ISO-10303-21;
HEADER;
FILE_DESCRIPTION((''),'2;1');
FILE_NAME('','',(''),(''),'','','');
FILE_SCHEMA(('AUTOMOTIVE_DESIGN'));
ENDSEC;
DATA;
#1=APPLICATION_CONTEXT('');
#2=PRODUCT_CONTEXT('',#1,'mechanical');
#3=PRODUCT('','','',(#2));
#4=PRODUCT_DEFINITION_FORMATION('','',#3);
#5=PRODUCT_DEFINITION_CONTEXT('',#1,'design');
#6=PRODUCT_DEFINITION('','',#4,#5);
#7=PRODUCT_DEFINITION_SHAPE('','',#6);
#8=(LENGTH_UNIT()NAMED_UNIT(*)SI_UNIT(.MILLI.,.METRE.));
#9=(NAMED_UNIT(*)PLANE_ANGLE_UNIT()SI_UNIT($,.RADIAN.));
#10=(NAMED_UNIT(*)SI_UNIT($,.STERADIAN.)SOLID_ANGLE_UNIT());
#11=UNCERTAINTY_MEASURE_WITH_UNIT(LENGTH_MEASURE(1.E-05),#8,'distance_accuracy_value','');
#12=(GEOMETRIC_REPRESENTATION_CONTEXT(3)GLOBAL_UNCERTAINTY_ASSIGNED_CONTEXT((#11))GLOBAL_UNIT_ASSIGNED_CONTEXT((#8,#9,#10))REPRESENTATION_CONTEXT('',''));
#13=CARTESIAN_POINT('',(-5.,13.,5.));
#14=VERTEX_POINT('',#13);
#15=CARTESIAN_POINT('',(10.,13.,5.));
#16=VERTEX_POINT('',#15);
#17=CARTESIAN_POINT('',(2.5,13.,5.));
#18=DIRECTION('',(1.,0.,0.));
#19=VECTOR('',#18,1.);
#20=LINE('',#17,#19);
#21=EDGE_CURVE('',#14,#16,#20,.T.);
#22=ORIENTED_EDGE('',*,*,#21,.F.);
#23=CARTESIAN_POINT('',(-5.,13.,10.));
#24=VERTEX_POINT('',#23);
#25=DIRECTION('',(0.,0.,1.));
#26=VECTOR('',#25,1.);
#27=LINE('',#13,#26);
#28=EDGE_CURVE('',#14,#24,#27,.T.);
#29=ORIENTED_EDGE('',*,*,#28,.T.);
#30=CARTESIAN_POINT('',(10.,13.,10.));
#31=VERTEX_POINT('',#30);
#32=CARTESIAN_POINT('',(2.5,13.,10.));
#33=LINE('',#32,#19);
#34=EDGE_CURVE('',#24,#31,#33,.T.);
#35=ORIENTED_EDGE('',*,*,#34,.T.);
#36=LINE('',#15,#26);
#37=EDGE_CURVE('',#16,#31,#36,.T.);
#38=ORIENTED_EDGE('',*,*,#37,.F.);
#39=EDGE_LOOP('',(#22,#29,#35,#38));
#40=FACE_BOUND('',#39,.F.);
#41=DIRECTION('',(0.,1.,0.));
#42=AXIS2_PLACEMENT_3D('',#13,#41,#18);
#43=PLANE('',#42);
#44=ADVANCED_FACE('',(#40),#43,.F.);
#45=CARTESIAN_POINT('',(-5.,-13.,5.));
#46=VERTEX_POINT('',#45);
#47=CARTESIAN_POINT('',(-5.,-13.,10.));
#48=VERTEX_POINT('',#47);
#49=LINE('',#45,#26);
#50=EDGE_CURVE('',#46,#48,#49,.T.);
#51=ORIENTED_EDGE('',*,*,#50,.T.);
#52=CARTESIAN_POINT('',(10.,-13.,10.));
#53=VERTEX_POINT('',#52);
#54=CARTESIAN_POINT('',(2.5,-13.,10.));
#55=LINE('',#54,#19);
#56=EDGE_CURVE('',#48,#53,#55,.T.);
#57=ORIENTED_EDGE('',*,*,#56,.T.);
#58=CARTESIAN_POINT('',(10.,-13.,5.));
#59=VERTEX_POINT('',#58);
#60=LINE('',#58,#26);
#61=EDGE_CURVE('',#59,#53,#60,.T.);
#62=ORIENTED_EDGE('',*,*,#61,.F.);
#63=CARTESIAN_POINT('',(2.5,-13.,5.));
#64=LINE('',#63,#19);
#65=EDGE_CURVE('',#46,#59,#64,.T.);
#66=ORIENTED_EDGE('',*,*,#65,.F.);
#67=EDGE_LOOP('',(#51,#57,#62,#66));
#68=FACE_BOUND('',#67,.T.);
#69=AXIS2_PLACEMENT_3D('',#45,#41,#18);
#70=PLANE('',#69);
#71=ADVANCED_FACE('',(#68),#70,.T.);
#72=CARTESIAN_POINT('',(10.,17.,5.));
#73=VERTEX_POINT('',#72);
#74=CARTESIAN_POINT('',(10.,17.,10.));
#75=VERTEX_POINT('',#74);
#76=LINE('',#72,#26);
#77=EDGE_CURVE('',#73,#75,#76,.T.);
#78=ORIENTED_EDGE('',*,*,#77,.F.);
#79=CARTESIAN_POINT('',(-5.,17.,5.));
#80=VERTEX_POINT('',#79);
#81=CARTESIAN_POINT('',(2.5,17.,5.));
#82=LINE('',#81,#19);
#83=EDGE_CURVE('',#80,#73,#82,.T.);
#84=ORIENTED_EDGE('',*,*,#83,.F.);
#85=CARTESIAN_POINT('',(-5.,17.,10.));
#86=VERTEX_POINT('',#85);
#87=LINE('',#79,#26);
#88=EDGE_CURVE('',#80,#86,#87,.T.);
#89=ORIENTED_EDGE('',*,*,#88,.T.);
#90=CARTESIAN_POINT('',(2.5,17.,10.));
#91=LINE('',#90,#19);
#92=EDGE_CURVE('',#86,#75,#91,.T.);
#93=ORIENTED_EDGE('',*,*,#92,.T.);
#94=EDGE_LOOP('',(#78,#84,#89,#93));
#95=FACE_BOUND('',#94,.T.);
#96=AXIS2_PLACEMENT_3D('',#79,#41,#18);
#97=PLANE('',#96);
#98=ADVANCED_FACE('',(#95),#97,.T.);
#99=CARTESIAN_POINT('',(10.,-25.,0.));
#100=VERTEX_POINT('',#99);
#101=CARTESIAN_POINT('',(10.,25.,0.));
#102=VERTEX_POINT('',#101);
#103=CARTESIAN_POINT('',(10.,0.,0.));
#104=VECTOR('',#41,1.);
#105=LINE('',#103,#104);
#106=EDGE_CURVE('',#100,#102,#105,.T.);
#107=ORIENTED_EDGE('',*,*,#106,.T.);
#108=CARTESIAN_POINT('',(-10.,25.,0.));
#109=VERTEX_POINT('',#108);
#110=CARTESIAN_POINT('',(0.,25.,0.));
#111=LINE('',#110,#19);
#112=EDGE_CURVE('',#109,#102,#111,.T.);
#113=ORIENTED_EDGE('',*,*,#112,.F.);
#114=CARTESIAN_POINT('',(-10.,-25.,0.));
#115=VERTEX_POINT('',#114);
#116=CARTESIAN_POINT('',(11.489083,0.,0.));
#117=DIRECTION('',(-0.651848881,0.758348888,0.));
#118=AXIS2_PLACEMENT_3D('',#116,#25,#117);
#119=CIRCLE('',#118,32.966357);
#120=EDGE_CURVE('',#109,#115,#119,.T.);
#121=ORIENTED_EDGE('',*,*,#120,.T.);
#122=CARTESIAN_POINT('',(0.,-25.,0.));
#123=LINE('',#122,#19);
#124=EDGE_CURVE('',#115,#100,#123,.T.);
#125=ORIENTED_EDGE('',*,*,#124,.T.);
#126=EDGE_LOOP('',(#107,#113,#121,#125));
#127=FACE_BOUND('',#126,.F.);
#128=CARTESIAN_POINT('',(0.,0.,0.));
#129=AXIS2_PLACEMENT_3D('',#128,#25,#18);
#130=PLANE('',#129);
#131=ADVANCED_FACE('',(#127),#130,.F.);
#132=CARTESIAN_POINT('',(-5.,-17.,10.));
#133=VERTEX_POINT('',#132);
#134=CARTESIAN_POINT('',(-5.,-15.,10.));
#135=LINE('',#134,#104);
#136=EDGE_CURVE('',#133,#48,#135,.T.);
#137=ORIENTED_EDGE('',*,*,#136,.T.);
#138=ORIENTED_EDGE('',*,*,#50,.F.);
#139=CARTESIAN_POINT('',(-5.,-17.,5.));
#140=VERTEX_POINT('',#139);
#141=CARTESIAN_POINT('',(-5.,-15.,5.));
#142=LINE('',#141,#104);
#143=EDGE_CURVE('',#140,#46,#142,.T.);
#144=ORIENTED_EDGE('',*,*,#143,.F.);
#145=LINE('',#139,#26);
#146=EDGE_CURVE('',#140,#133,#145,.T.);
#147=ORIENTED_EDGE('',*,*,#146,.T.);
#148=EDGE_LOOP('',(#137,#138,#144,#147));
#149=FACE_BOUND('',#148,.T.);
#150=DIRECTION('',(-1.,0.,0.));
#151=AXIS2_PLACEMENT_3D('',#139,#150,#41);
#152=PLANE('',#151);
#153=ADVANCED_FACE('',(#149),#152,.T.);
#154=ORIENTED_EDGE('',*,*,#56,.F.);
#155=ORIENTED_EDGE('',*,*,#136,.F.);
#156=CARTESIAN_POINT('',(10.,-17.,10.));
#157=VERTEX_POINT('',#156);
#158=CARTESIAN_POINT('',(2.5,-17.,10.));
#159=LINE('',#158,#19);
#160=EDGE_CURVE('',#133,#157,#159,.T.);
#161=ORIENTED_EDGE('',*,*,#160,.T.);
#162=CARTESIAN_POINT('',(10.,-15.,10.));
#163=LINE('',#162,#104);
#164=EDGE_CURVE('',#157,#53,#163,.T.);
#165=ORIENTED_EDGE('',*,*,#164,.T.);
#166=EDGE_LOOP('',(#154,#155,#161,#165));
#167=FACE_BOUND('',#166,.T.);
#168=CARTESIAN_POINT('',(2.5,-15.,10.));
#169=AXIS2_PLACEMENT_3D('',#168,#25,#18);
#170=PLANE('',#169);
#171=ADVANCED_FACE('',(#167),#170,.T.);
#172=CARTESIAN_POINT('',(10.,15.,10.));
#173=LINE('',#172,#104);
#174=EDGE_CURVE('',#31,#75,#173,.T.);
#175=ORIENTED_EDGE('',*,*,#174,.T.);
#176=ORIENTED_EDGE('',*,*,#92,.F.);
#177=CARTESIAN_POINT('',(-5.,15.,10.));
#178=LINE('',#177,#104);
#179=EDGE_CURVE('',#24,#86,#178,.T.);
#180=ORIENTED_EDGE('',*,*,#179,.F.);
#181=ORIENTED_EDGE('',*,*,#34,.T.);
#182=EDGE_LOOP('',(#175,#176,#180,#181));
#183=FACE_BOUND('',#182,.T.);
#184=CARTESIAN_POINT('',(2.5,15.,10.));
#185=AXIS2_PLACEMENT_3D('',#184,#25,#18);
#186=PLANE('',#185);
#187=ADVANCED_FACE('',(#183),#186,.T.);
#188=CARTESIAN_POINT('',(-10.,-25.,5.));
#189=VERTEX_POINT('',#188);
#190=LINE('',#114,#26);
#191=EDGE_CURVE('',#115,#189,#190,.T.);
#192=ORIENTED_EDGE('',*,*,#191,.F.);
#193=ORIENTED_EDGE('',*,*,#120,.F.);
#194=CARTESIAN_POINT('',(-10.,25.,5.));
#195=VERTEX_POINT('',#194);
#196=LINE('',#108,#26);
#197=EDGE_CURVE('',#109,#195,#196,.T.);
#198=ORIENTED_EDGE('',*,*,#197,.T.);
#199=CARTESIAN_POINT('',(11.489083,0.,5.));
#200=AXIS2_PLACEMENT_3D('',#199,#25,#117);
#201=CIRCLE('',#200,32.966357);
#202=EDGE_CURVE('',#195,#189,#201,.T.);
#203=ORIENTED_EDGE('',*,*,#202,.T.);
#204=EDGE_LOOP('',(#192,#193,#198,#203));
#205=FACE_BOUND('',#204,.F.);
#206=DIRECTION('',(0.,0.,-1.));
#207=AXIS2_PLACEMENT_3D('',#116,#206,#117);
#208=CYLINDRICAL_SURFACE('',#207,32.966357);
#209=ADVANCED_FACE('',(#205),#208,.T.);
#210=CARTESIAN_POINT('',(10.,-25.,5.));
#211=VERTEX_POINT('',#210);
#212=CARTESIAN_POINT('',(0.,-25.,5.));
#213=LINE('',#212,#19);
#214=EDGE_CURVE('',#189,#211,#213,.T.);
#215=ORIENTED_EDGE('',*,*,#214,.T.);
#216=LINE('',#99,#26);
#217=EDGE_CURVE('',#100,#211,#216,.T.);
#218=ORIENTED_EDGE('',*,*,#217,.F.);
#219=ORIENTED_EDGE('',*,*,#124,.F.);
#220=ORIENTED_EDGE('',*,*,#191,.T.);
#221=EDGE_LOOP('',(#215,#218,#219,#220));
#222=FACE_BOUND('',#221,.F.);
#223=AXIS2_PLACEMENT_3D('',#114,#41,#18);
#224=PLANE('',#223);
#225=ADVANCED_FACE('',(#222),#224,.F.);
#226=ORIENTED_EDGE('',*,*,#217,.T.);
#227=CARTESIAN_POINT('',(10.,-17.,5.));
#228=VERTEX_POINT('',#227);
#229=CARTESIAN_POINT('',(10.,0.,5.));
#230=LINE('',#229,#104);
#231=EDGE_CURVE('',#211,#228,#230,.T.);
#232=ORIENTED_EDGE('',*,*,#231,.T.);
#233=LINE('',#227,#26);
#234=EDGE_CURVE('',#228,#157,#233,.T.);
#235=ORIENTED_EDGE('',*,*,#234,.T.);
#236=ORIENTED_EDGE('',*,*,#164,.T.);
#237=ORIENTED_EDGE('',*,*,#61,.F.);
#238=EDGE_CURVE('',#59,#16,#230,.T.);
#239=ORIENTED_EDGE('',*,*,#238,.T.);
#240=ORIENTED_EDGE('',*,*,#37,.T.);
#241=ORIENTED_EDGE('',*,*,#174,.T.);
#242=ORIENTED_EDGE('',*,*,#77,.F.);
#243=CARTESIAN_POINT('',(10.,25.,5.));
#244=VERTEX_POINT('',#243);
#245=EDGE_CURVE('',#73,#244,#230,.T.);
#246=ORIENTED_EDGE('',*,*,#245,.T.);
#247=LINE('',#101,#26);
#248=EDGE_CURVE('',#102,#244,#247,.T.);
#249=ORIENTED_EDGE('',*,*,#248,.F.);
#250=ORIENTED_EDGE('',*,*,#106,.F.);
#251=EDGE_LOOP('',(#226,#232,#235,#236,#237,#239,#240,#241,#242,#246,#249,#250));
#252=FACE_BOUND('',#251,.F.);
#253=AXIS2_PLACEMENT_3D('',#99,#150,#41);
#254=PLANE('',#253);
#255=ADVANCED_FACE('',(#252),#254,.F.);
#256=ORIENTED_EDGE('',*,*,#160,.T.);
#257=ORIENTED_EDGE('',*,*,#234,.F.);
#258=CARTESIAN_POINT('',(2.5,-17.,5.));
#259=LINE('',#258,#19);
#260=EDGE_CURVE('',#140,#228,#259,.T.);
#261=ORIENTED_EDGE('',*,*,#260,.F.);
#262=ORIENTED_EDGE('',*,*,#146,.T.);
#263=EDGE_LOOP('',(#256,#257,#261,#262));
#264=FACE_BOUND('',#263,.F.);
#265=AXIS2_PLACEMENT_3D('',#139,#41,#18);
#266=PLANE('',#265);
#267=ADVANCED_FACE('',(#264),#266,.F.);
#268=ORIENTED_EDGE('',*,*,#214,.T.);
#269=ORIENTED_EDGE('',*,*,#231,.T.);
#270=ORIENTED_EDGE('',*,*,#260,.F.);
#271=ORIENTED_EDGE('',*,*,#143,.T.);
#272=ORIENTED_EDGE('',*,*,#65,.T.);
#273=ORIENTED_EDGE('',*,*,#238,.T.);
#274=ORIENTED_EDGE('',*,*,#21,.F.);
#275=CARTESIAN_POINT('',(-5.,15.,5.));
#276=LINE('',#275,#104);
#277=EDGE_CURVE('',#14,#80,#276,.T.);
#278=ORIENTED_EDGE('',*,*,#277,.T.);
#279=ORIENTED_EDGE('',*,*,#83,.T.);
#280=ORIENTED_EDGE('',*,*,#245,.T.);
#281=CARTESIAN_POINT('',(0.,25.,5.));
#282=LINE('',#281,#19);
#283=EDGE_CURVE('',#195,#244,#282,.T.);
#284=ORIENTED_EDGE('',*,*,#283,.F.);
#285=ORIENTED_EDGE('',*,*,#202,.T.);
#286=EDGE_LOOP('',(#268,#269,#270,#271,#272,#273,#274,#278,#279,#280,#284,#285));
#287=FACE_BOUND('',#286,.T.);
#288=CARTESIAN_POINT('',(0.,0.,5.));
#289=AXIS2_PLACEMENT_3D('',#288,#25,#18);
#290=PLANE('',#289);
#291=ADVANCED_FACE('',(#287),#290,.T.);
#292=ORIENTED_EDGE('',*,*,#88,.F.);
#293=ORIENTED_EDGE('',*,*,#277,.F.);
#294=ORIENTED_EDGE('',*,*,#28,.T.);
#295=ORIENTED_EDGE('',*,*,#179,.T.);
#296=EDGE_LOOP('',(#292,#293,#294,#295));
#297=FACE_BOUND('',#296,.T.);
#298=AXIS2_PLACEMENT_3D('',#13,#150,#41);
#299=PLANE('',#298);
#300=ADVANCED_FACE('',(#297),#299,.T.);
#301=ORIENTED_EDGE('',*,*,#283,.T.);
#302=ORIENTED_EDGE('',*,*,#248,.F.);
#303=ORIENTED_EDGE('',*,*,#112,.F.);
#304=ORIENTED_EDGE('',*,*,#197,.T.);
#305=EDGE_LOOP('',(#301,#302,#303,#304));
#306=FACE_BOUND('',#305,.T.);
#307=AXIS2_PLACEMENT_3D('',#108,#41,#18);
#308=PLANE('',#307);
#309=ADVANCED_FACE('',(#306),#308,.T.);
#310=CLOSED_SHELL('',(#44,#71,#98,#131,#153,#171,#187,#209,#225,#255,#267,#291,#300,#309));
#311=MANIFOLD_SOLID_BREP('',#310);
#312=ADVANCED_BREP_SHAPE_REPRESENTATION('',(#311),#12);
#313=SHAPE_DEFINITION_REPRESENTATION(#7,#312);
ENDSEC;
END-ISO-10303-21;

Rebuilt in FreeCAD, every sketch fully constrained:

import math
import FreeCAD as App
import Part
import Sketcher
from FreeCAD import Vector
Q = App.Units.Quantity

doc = App.newDocument("Part")
params = doc.addObject("Spreadsheet::Sheet", "Params")
for row, (alias, value) in enumerate([
    ("sketch1_width", "20 mm"),
    ("sketch1_height", "50 mm"),
    ("pad1_length", "5 mm"),
    ("sketch2_width", "15 mm"),
    ("sketch2_height", "4 mm"),
    ("pad2_length", "5 mm"),
], start=1):
    params.set(f"A{row}", alias)
    params.set(f"B{row}", "=" + value)
    params.setAlias(f"B{row}", alias)

body = doc.addObject("PartDesign::Body", "Body")

# Sketch on XY plane
sketch1 = doc.addObject("Sketcher::SketchObject", "Sketch")
body.addObject(sketch1)
sketch1.AttachmentSupport = (doc.XY_Plane, [""])
sketch1.MapMode = "FlatFace"
sketch1.addGeometry([
    Part.LineSegment(Vector(-10, -25, 0), Vector(10, -25, 0)),
    Part.LineSegment(Vector(10, -25, 0), Vector(10, 25, 0)),
    Part.LineSegment(Vector(10, 25, 0), Vector(-10, 25, 0)),
    Part.ArcOfCircle(Part.Circle(Vector(11, 0, 0), Vector(0, 0, 1), 33), math.radians(131), math.radians(229)),
], False)
sketch1.addConstraint([
    Sketcher.Constraint("Coincident", 0, 2, 1, 1),
    Sketcher.Constraint("Coincident", 1, 2, 2, 1),
    Sketcher.Constraint("Coincident", 2, 2, 3, 1),
    Sketcher.Constraint("Coincident", 3, 2, 0, 1),
    Sketcher.Constraint("Horizontal", 0),
    Sketcher.Constraint("Vertical", 1),
    Sketcher.Constraint("Horizontal", 2),
    Sketcher.Constraint("Symmetric", 0, 2, 2, 2, -1, 1),
    Sketcher.Constraint("PointOnObject", 3, 3, -1),
    Sketcher.Constraint("DistanceX", 0, 1, 0, 2, Q("20 mm")),
    Sketcher.Constraint("DistanceY", 1, 1, 1, 2, Q("50 mm")),
    Sketcher.Constraint("Radius", 3, Q("32.966357 mm")),
])
sketch1.setExpression("Constraints[9]", "Params.sketch1_width")
sketch1.setExpression("Constraints[10]", "Params.sketch1_height")
pad1 = doc.addObject("PartDesign::Pad", "Pad")
body.addObject(pad1)
pad1.Profile = sketch1
pad1.setExpression("Length", "Params.pad1_length")

# Sketch on XY plane
sketch2 = doc.addObject("Sketcher::SketchObject", "Sketch001")
body.addObject(sketch2)
sketch2.AttachmentSupport = (doc.XY_Plane, [""])
sketch2.MapMode = "FlatFace"
sketch2.AttachmentOffset = App.Placement(Vector(0, 0, 5), App.Rotation())
sketch2.addGeometry([
    Part.LineSegment(Vector(-5, 17, 0), Vector(-5, 13, 0)),  # 0
    Part.LineSegment(Vector(-5, 13, 0), Vector(10, 13, 0)),  # 1
    Part.LineSegment(Vector(10, 13, 0), Vector(10, 17, 0)),  # 2
    Part.LineSegment(Vector(10, 17, 0), Vector(-5, 17, 0)),  # 3
    Part.LineSegment(Vector(-5, -13, 0), Vector(-5, -17, 0)),  # 4
    Part.LineSegment(Vector(-5, -17, 0), Vector(10, -17, 0)),  # 5
    Part.LineSegment(Vector(10, -17, 0), Vector(10, -13, 0)),  # 6
    Part.LineSegment(Vector(10, -13, 0), Vector(-5, -13, 0)),  # 7
], False)
sketch2.addConstraint([
    Sketcher.Constraint("Coincident", 0, 2, 1, 1),
    Sketcher.Constraint("Coincident", 1, 2, 2, 1),
    Sketcher.Constraint("Coincident", 2, 2, 3, 1),
    Sketcher.Constraint("Coincident", 3, 2, 0, 1),
    Sketcher.Constraint("Coincident", 4, 2, 5, 1),
    Sketcher.Constraint("Coincident", 5, 2, 6, 1),
    Sketcher.Constraint("Coincident", 6, 2, 7, 1),
    Sketcher.Constraint("Coincident", 7, 2, 4, 1),
    Sketcher.Constraint("Vertical", 0),
    Sketcher.Constraint("Horizontal", 1),
    Sketcher.Constraint("Vertical", 2),
    Sketcher.Constraint("Horizontal", 3),
    Sketcher.Constraint("Vertical", 4),
    Sketcher.Constraint("Horizontal", 5),
    Sketcher.Constraint("Vertical", 6),
    Sketcher.Constraint("Horizontal", 7),
    Sketcher.Constraint("Symmetric", 3, 2, 4, 2, -1),
    Sketcher.Constraint("Symmetric", 1, 2, 6, 2, -1),
    Sketcher.Constraint("DistanceX", 1, 1, 1, 2, Q("15 mm")),
    Sketcher.Constraint("DistanceY", 0, 2, 0, 1, Q("4 mm")),
    Sketcher.Constraint("DistanceX", 0, 2, -1, 1, Q("5 mm")),
    Sketcher.Constraint("DistanceY", -1, 1, 0, 2, Q("13 mm")),
])
sketch2.setExpression("Constraints[18]", "Params.sketch2_width")
sketch2.setExpression("Constraints[19]", "Params.sketch2_height")
pad2 = doc.addObject("PartDesign::Pad", "Pad001")
body.addObject(pad2)
pad2.Profile = sketch2
pad2.setExpression("Length", "Params.pad2_length")

doc.recompute()
